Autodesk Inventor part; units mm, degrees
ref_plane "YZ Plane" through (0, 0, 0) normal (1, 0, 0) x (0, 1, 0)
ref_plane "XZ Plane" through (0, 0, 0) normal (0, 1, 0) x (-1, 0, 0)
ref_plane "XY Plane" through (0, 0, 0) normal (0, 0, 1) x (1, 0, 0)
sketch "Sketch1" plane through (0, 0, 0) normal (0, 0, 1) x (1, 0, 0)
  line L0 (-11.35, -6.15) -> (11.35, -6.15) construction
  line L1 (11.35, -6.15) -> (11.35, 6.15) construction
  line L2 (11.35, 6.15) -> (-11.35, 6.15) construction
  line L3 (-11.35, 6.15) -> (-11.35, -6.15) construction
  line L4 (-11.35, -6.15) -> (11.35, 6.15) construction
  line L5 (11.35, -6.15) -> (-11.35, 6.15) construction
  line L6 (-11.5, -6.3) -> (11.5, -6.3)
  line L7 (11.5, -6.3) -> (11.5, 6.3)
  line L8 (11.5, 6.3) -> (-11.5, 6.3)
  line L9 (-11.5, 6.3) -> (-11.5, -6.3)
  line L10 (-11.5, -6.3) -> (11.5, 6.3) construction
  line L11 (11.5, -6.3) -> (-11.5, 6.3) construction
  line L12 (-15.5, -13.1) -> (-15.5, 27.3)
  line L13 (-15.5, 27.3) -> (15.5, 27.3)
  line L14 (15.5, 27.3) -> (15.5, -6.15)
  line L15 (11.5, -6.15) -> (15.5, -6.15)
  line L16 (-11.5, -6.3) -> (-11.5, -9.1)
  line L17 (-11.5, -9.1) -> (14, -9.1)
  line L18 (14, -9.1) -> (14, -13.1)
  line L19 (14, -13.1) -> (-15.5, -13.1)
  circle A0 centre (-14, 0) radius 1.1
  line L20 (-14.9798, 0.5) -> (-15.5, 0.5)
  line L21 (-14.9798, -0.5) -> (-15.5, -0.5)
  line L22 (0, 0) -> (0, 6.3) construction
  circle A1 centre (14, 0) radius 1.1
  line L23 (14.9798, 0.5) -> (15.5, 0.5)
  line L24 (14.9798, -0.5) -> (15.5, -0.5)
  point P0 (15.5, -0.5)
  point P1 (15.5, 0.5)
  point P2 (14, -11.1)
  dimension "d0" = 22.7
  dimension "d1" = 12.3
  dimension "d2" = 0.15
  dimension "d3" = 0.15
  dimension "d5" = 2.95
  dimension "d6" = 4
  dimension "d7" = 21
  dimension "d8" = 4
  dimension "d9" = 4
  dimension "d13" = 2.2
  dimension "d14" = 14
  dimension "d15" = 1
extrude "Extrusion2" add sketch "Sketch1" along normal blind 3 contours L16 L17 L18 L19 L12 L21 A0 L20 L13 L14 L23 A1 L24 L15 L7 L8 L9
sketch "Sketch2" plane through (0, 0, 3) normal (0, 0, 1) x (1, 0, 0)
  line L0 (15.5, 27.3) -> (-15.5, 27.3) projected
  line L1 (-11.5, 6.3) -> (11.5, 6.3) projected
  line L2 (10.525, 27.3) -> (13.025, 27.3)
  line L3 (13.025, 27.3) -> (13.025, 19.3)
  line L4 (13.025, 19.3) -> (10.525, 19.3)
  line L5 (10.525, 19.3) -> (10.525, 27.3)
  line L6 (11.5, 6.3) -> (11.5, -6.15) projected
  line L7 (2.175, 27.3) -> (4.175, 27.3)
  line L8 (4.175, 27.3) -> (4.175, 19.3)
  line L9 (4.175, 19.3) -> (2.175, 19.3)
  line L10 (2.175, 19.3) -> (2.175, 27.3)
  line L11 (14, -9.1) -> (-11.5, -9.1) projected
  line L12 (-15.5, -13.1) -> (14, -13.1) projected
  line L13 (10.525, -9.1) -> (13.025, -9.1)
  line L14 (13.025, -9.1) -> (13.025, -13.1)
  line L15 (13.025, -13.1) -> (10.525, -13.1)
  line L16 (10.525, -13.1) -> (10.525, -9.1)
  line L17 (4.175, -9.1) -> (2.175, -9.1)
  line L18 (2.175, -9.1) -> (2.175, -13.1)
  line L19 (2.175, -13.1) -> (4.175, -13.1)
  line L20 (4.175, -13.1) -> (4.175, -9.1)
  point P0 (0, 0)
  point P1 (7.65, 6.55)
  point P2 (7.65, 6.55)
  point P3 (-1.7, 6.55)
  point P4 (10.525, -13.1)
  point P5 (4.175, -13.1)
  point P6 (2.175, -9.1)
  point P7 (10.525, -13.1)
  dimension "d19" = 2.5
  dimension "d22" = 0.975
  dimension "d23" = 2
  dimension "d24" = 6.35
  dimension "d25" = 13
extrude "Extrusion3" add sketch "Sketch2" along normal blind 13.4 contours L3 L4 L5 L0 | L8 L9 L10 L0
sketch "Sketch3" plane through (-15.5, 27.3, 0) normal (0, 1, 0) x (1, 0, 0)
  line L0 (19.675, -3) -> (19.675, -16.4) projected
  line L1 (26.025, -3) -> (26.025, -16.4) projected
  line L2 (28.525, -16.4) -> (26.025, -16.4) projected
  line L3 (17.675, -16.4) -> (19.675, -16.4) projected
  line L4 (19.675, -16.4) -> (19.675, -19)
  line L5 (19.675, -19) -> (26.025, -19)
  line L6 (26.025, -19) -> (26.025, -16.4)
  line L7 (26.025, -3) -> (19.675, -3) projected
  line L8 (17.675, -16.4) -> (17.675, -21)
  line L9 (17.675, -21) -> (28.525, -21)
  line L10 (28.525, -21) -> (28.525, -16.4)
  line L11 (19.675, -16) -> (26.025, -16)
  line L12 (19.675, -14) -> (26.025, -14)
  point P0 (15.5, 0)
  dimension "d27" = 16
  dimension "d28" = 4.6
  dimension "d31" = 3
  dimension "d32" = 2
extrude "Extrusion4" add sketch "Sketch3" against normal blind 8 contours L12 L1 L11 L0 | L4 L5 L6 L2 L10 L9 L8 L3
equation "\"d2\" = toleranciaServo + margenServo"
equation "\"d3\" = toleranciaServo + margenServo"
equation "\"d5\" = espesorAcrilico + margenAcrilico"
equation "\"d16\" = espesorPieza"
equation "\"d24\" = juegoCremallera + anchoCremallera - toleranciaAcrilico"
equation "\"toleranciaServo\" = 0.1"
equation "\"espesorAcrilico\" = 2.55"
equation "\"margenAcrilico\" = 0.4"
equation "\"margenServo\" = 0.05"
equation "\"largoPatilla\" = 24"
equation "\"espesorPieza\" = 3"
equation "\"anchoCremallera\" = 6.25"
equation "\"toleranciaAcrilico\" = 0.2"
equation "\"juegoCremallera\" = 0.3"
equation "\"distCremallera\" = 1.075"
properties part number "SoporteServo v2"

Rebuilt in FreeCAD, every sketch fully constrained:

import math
import FreeCAD as App
import Part
import Sketcher
from FreeCAD import Vector

doc = App.newDocument("Part")
body = doc.addObject("PartDesign::Body", "Body")

sketch1 = doc.addObject("Sketcher::SketchObject", "Sketch")
body.addObject(sketch1)
sketch1.AttachmentSupport = (doc.XY_Plane, [""])
sketch1.MapMode = "FlatFace"
sketch1.addGeometry(Part.LineSegment(Vector(-11.5, -9.1, 0), Vector(-11.5, 6.3, 0)), False)
sketch1.addGeometry(Part.LineSegment(Vector(-11.5, 6.3, 0), Vector(11.5, 6.3, 0)), False)
sketch1.addGeometry(Part.LineSegment(Vector(11.5, 6.3, 0), Vector(11.5, -6.15, 0)), False)
sketch1.addGeometry(Part.LineSegment(Vector(11.5, -6.15, 0), Vector(15.5, -6.15, 0)), False)
sketch1.addGeometry(Part.LineSegment(Vector(15.5, -6.15, 0), Vector(15.5, -0.5, 0)), False)
sketch1.addGeometry(Part.LineSegment(Vector(15.5, -0.5, 0), Vector(14.9798, -0.5, 0)), False)
sketch1.addGeometry(Part.ArcOfCircle(Part.Circle(Vector(14, 0, 0), Vector(0, 0, 1), 1.1), math.radians(27.035595), math.radians(332.964405)), False)
sketch1.addGeometry(Part.LineSegment(Vector(14.9798, 0.5, 0), Vector(15.5, 0.5, 0)), False)
sketch1.addGeometry(Part.LineSegment(Vector(15.5, 0.5, 0), Vector(15.5, 27.3, 0)), False)
sketch1.addGeometry(Part.LineSegment(Vector(15.5, 27.3, 0), Vector(-15.5, 27.3, 0)), False)
sketch1.addGeometry(Part.LineSegment(Vector(-15.5, 27.3, 0), Vector(-15.5, 0.5, 0)), False)
sketch1.addGeometry(Part.LineSegment(Vector(-15.5, 0.5, 0), Vector(-14.9798, 0.5, 0)), False)
sketch1.addGeometry(Part.ArcOfCircle(Part.Circle(Vector(-14, 0, 0), Vector(0, 0, 1), 1.1), math.radians(-152.964405), math.radians(152.964405)), False)
sketch1.addGeometry(Part.LineSegment(Vector(-14.9798, -0.5, 0), Vector(-15.5, -0.5, 0)), False)
sketch1.addGeometry(Part.LineSegment(Vector(-15.5, -0.5, 0), Vector(-15.5, -13.1, 0)), False)
sketch1.addGeometry(Part.LineSegment(Vector(-15.5, -13.1, 0), Vector(14, -13.1, 0)), False)
sketch1.addGeometry(Part.LineSegment(Vector(14, -13.1, 0), Vector(14, -9.1, 0)), False)
sketch1.addGeometry(Part.LineSegment(Vector(14, -9.1, 0), Vector(-11.5, -9.1, 0)), False)
sketch1.addConstraint(Sketcher.Constraint("Coincident", 0, 2, 1, 1))
sketch1.addConstraint(Sketcher.Constraint("Coincident", 1, 2, 2, 1))
sketch1.addConstraint(Sketcher.Constraint("Coincident", 2, 2, 3, 1))
sketch1.addConstraint(Sketcher.Constraint("Coincident", 3, 2, 4, 1))
sketch1.addConstraint(Sketcher.Constraint("Coincident", 4, 2, 5, 1))
sketch1.addConstraint(Sketcher.Constraint("Coincident", 5, 2, 6, 2))
sketch1.addConstraint(Sketcher.Constraint("Coincident", 6, 1, 7, 1))
sketch1.addConstraint(Sketcher.Constraint("Coincident", 7, 2, 8, 1))
sketch1.addConstraint(Sketcher.Constraint("Coincident", 8, 2, 9, 1))
sketch1.addConstraint(Sketcher.Constraint("Coincident", 9, 2, 10, 1))
sketch1.addConstraint(Sketcher.Constraint("Coincident", 10, 2, 11, 1))
sketch1.addConstraint(Sketcher.Constraint("Coincident", 11, 2, 12, 2))
sketch1.addConstraint(Sketcher.Constraint("Coincident", 12, 1, 13, 1))
sketch1.addConstraint(Sketcher.Constraint("Coincident", 13, 2, 14, 1))
sketch1.addConstraint(Sketcher.Constraint("Coincident", 14, 2, 15, 1))
sketch1.addConstraint(Sketcher.Constraint("Coincident", 15, 2, 16, 1))
sketch1.addConstraint(Sketcher.Constraint("Coincident", 16, 2, 17, 1))
sketch1.addConstraint(Sketcher.Constraint("Coincident", 17, 2, 0, 1))
sketch1.addConstraint(Sketcher.Constraint("Vertical", 0))
sketch1.addConstraint(Sketcher.Constraint("Horizontal", 1))
sketch1.addConstraint(Sketcher.Constraint("Vertical", 2))
sketch1.addConstraint(Sketcher.Constraint("Horizontal", 3))
sketch1.addConstraint(Sketcher.Constraint("Vertical", 4))
sketch1.addConstraint(Sketcher.Constraint("Horizontal", 5))
sketch1.addConstraint(Sketcher.Constraint("Horizontal", 7))
sketch1.addConstraint(Sketcher.Constraint("Vertical", 8))
sketch1.addConstraint(Sketcher.Constraint("Horizontal", 9))
sketch1.addConstraint(Sketcher.Constraint("Vertical", 10))
sketch1.addConstraint(Sketcher.Constraint("Horizontal", 11))
sketch1.addConstraint(Sketcher.Constraint("Horizontal", 13))
sketch1.addConstraint(Sketcher.Constraint("Vertical", 14))
sketch1.addConstraint(Sketcher.Constraint("Horizontal", 15))
sketch1.addConstraint(Sketcher.Constraint("Vertical", 16))
sketch1.addConstraint(Sketcher.Constraint("Horizontal", 17))
sketch1.addConstraint(Sketcher.Constraint("Equal", 6, 12))
sketch1.addConstraint(Sketcher.Constraint("Symmetric", 6, 3, 12, 3, -1, 1))
sketch1.addConstraint(Sketcher.Constraint("Symmetric", 4, 2, 10, 2, -1, 1))
sketch1.addConstraint(Sketcher.Constraint("Symmetric", 7, 2, 13, 2, -1, 1))
sketch1.addConstraint(Sketcher.Constraint("Symmetric", 7, 2, 10, 2, -2))
sketch1.addConstraint(Sketcher.Constraint("PointOnObject", 6, 3, -1))
sketch1.addConstraint(Sketcher.Constraint("Vertical", 6, 3, 15, 2))
sketch1.addConstraint(Sketcher.Constraint("Equal", 3, 16))
sketch1.addConstraint(Sketcher.Constraint("Radius", 6, 1.1))
sketch1.addConstraint(Sketcher.Constraint("DistanceX", 3, 1, 3, 2, 4.0))
sketch1.addConstraint(Sketcher.Constraint("DistanceX", -1, 1, 6, 3, 14.0))
sketch1.addConstraint(Sketcher.Constraint("DistanceY", 5, 2, 6, 1, 1.0))
sketch1.addConstraint(Sketcher.Constraint("DistanceY", 1, 2, 8, 2, 21.0))
sketch1.addConstraint(Sketcher.Constraint("DistanceX", 9, 2, 0, 2, 4.0))
sketch1.addConstraint(Sketcher.Constraint("DistanceX", 1, 1, 1, 2, 23.0))
sketch1.addConstraint(Sketcher.Constraint("DistanceY", 16, 2, 3, 2, 2.95))
sketch1.addConstraint(Sketcher.Constraint("DistanceY", 0, 1, 0, 2, 15.4))
sketch1.addConstraint(Sketcher.Constraint("DistanceY", 8, 1, 8, 2, 26.8))
pad1 = doc.addObject("PartDesign::Pad", "Pad")
body.addObject(pad1)
pad1.Profile = sketch1
pad1.Length = 3

sketch2 = doc.addObject("Sketcher::SketchObject", "Sketch001")
body.addObject(sketch2)
sketch2.AttachmentSupport = (doc.XY_Plane, [""])
sketch2.MapMode = "FlatFace"
sketch2.AttachmentOffset = App.Placement(Vector(0, 0, 3), App.Rotation())
sketch2.addGeometry(Part.LineSegment(Vector(13.025, 19.3, 0), Vector(13.025, 27.3, 0)), False)
sketch2.addGeometry(Part.LineSegment(Vector(13.025, 27.3, 0), Vector(10.525, 27.3, 0)), False)
sketch2.addGeometry(Part.LineSegment(Vector(10.525, 27.3, 0), Vector(10.525, 19.3, 0)), False)
sketch2.addGeometry(Part.LineSegment(Vector(10.525, 19.3, 0), Vector(13.025, 19.3, 0)), False)
sketch2.addGeometry(Part.LineSegment(Vector(4.175, 19.3, 0), Vector(4.175, 27.3, 0)), False)
sketch2.addGeometry(Part.LineSegment(Vector(4.175, 27.3, 0), Vector(2.175, 27.3, 0)), False)
sketch2.addGeometry(Part.LineSegment(Vector(2.175, 27.3, 0), Vector(2.175, 19.3, 0)), False)
sketch2.addGeometry(Part.LineSegment(Vector(2.175, 19.3, 0), Vector(4.175, 19.3, 0)), False)
sketch2.addConstraint(Sketcher.Constraint("Coincident", 0, 2, 1, 1))
sketch2.addConstraint(Sketcher.Constraint("Coincident", 1, 2, 2, 1))
sketch2.addConstraint(Sketcher.Constraint("Coincident", 2, 2, 3, 1))
sketch2.addConstraint(Sketcher.Constraint("Coincident", 3, 2, 0, 1))
sketch2.addConstraint(Sketcher.Constraint("Coincident", 4, 2, 5, 1))
sketch2.addConstraint(Sketcher.Constraint("Coincident", 5, 2, 6, 1))
sketch2.addConstraint(Sketcher.Constraint("Coincident", 6, 2, 7, 1))
sketch2.addConstraint(Sketcher.Constraint("Coincident", 7, 2, 4, 1))
sketch2.addConstraint(Sketcher.Constraint("Vertical", 0))
sketch2.addConstraint(Sketcher.Constraint("Horizontal", 1))
sketch2.addConstraint(Sketcher.Constraint("Vertical", 2))
sketch2.addConstraint(Sketcher.Constraint("Horizontal", 3))
sketch2.addConstraint(Sketcher.Constraint("Vertical", 4))
sketch2.addConstraint(Sketcher.Constraint("Horizontal", 5))
sketch2.addConstraint(Sketcher.Constraint("Vertical", 6))
sketch2.addConstraint(Sketcher.Constraint("Horizontal", 7))
sketch2.addConstraint(Sketcher.Constraint("Horizontal", 1, 2, 4, 2))
sketch2.addConstraint(Sketcher.Constraint("Horizontal", 3, 2, 6, 2))
sketch2.addConstraint(Sketcher.Constraint("DistanceX", 5, 2, 5, 1, 2.0))
sketch2.addConstraint(Sketcher.Constraint("DistanceX", 1, 2, 1, 1, 2.5))
sketch2.addConstraint(Sketcher.Constraint("DistanceY", 0, 1, 0, 2, 8.0))
sketch2.addConstraint(Sketcher.Constraint("DistanceX", 4, 2, 1, 2, 6.35))
sketch2.addConstraint(Sketcher.Constraint("DistanceY", -1, 1, 0, 2, 27.3))
sketch2.addConstraint(Sketcher.Constraint("DistanceX", -1, 1, 0, 2, 13.025))
pad2 = doc.addObject("PartDesign::Pad", "Pad001")
body.addObject(pad2)
pad2.Profile = sketch2
pad2.Length = 13.4

sketch3 = doc.addObject("Sketcher::SketchObject", "Sketch002")
body.addObject(sketch3)
sketch3.AttachmentSupport = (doc.XZ_Plane, [""])
sketch3.MapMode = "FlatFace"
sketch3.AttachmentOffset = App.Placement(Vector(0, 0, -27.3), App.Rotation())
sketch3.addGeometry(Part.LineSegment(Vector(10.525, 14, 0), Vector(4.175, 14, 0)), False)
sketch3.addGeometry(Part.LineSegment(Vector(4.175, 14, 0), Vector(4.175, 16, 0)), False)
sketch3.addGeometry(Part.LineSegment(Vector(4.175, 16, 0), Vector(10.525, 16, 0)), False)
sketch3.addGeometry(Part.LineSegment(Vector(10.525, 16, 0), Vector(10.525, 14, 0)), False)
sketch3.addGeometry(Part.LineSegment(Vector(4.175, 19, 0), Vector(4.175, 16.4, 0)), False)
sketch3.addGeometry(Part.LineSegment(Vector(4.175, 16.4, 0), Vector(2.175, 16.4, 0)), False)
sketch3.addGeometry(Part.LineSegment(Vector(2.175, 16.4, 0), Vector(2.175, 21, 0)), False)
sketch3.addGeometry(Part.LineSegment(Vector(2.175, 21, 0), Vector(13.025, 21, 0)), False)
sketch3.addGeometry(Part.LineSegment(Vector(13.025, 21, 0), Vector(13.025, 16.4, 0)), False)
sketch3.addGeometry(Part.LineSegment(Vector(13.025, 16.4, 0), Vector(10.525, 16.4, 0)), False)
sketch3.addGeometry(Part.LineSegment(Vector(10.525, 16.4, 0), Vector(10.525, 19, 0)), False)
sketch3.addGeometry(Part.LineSegment(Vector(10.525, 19, 0), Vector(4.175, 19, 0)), False)
sketch3.addConstraint(Sketcher.Constraint("Coincident", 0, 2, 1, 1))
sketch3.addConstraint(Sketcher.Constraint("Coincident", 1, 2, 2, 1))
sketch3.addConstraint(Sketcher.Constraint("Coincident", 2, 2, 3, 1))
sketch3.addConstraint(Sketcher.Constraint("Coincident", 3, 2, 0, 1))
sketch3.addConstraint(Sketcher.Constraint("Coincident", 4, 2, 5, 1))
sketch3.addConstraint(Sketcher.Constraint("Coincident", 5, 2, 6, 1))
sketch3.addConstraint(Sketcher.Constraint("Coincident", 6, 2, 7, 1))
sketch3.addConstraint(Sketcher.Constraint("Coincident", 7, 2, 8, 1))
sketch3.addConstraint(Sketcher.Constraint("Coincident", 8, 2, 9, 1))
sketch3.addConstraint(Sketcher.Constraint("Coincident", 9, 2, 10, 1))
sketch3.addConstraint(Sketcher.Constraint("Coincident", 10, 2, 11, 1))
sketch3.addConstraint(Sketcher.Constraint("Coincident", 11, 2, 4, 1))
sketch3.addConstraint(Sketcher.Constraint("Horizontal", 0))
sketch3.addConstraint(Sketcher.Constraint("Vertical", 1))
sketch3.addConstraint(Sketcher.Constraint("Horizontal", 2))
sketch3.addConstraint(Sketcher.Constraint("Vertical", 3))
sketch3.addConstraint(Sketcher.Constraint("Vertical", 4))
sketch3.addConstraint(Sketcher.Constraint("Horizontal", 5))
sketch3.addConstraint(Sketcher.Constraint("Vertical", 6))
sketch3.addConstraint(Sketcher.Constraint("Horizontal", 7))
sketch3.addConstraint(Sketcher.Constraint("Vertical", 8))
sketch3.addConstraint(Sketcher.Constraint("Horizontal", 9))
sketch3.addConstraint(Sketcher.Constraint("Vertical", 10))
sketch3.addConstraint(Sketcher.Constraint("Horizontal", 11))
sketch3.addConstraint(Sketcher.Constraint("Horizontal", 5, 2, 8, 2))
sketch3.addConstraint(Sketcher.Constraint("Vertical", 1, 2, 4, 2))
sketch3.addConstraint(Sketcher.Constraint("Vertical", 3, 2, 9, 2))
sketch3.addConstraint(Sketcher.Constraint("Equal", 5, 1))
sketch3.addConstraint(Sketcher.Constraint("DistanceX", 5, 2, 5, 1, 2.0))
sketch3.addConstraint(Sketcher.Constraint("DistanceY", 6, 1, 6, 2, 4.6))
sketch3.addConstraint(Sketcher.Constraint("DistanceY", -1, 1, 1, 2, 16.0))
sketch3.addConstraint(Sketcher.Constraint("DistanceY", 2, 2, 10, 2, 3.0))
sketch3.addConstraint(Sketcher.Constraint("DistanceY", 10, 2, 7, 2, 2.0))
sketch3.addConstraint(Sketcher.Constraint("DistanceX", 9, 2, 9, 1, 2.5))
sketch3.addConstraint(Sketcher.Constraint("DistanceX", 0, 2, 0, 1, 6.35))
sketch3.addConstraint(Sketcher.Constraint("DistanceX", -1, 1, 0, 2, 4.175))
pad3 = doc.addObject("PartDesign::Pad", "Pad002")
body.addObject(pad3)
pad3.Profile = sketch3
pad3.Length = 8

doc.recompute()
